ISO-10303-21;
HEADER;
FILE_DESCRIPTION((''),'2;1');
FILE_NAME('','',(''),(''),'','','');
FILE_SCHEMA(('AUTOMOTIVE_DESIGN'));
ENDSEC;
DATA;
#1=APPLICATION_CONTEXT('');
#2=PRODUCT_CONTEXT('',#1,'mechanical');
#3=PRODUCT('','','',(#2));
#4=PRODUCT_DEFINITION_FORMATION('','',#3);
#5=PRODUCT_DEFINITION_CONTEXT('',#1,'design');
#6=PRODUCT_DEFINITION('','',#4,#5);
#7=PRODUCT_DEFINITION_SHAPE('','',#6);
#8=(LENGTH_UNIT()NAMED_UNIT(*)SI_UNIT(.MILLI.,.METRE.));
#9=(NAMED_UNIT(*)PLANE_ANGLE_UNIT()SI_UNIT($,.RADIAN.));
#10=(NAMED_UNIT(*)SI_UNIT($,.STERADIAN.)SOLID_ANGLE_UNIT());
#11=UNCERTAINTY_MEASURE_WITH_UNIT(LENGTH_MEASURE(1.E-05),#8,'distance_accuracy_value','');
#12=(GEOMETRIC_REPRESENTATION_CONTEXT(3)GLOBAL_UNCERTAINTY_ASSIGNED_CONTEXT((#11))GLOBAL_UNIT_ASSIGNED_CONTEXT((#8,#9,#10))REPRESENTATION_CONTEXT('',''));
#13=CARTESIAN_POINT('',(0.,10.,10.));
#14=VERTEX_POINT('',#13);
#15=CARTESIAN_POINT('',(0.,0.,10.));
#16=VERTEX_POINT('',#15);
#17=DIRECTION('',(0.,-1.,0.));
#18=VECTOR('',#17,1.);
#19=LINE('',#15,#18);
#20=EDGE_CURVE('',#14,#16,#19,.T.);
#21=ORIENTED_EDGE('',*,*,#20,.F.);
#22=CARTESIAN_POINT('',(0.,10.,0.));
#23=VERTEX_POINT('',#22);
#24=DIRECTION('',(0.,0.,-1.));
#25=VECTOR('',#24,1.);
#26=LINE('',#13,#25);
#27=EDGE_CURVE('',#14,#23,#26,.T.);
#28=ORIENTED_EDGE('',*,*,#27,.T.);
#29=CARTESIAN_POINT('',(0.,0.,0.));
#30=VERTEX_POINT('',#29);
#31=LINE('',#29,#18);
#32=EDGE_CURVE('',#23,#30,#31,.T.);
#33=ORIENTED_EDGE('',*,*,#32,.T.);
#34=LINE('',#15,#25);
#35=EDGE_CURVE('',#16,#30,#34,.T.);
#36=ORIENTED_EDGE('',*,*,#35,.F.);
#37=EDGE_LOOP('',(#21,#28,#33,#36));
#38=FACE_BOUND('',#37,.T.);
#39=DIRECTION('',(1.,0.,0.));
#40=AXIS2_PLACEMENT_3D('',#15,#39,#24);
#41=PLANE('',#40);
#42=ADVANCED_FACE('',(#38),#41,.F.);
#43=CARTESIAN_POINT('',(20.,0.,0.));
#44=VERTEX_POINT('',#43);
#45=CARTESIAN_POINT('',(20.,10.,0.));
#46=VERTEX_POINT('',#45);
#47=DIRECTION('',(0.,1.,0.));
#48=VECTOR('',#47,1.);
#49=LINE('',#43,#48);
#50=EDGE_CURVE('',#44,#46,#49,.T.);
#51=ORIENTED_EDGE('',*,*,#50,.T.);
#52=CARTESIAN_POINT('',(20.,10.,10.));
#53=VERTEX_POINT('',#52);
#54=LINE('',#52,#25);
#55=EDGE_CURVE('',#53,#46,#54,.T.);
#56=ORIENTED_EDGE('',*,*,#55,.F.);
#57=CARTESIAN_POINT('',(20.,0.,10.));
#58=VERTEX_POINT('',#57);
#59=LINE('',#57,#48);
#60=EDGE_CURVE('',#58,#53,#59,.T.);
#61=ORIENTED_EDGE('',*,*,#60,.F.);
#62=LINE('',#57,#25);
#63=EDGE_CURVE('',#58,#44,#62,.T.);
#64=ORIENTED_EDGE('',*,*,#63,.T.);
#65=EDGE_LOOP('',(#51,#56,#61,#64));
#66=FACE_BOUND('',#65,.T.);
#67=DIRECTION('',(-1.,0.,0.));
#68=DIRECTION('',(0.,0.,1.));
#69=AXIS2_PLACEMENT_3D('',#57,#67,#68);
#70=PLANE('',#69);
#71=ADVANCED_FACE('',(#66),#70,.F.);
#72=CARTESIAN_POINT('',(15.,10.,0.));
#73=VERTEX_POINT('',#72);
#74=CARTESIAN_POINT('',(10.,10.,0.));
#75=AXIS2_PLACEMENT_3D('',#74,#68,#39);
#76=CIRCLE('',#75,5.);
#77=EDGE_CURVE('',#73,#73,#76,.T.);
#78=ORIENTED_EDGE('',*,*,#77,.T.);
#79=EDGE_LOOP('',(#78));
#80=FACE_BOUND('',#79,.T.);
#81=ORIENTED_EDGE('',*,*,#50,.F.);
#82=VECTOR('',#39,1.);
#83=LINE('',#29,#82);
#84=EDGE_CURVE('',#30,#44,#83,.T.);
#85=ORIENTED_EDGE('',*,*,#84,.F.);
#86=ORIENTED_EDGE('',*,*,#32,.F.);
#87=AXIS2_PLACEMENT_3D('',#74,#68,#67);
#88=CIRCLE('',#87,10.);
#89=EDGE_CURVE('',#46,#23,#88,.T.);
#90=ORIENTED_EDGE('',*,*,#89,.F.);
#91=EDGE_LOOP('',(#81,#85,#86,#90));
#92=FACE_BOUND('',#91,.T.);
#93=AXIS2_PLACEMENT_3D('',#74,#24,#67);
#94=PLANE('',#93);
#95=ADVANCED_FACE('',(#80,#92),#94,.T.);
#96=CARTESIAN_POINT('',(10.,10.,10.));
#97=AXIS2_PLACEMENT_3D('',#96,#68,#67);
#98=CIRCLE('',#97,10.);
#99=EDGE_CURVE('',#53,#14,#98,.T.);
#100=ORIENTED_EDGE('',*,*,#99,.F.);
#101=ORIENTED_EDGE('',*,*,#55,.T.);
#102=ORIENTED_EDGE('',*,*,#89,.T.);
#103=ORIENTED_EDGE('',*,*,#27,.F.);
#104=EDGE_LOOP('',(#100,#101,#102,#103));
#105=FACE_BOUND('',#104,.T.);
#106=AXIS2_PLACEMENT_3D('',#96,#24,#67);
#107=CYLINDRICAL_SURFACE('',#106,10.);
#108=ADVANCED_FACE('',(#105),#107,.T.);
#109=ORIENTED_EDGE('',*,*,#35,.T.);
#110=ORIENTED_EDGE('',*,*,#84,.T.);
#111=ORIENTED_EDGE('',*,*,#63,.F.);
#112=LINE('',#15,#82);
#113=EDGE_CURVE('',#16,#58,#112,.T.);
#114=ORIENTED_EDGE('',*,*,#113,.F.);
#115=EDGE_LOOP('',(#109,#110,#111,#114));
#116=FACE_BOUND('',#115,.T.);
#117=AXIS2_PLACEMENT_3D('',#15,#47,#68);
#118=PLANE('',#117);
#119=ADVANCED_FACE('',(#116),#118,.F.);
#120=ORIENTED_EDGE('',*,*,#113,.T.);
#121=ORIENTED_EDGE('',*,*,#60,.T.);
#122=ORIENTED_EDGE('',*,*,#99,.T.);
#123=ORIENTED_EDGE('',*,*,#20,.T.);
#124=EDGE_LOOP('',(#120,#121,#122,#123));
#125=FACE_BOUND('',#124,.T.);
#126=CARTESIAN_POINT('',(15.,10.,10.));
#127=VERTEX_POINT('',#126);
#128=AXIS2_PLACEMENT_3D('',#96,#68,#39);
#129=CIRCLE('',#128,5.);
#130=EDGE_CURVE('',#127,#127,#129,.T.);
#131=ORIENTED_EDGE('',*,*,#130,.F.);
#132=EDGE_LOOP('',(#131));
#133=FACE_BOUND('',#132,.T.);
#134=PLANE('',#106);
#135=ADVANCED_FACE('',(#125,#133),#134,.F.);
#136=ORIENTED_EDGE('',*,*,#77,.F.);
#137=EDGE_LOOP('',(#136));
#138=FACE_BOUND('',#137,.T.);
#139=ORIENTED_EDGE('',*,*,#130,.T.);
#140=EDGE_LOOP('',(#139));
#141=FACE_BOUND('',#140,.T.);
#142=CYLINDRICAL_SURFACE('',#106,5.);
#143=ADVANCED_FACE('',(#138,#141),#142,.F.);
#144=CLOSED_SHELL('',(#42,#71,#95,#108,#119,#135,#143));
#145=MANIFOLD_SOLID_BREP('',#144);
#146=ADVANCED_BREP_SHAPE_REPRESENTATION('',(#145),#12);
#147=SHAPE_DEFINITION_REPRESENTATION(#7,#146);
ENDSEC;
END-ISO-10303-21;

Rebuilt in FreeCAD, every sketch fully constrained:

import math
import FreeCAD as App
import Part
import Sketcher
from FreeCAD import Vector
Q = App.Units.Quantity

doc = App.newDocument("Part")
body = doc.addObject("PartDesign::Body", "Body")

sketch1 = body.newObject("Sketcher::SketchObject", "Sketch")
sketch1.AttachmentSupport = (doc.getObject("XY_Plane"), [""])
sketch1.MapMode = "FlatFace"
sketch1.addGeometry([
    Part.LineSegment(Vector(0, 0, 0), Vector(20, 0, 0)),
    Part.LineSegment(Vector(20, 0, 0), Vector(20, 10, 0)),
    Part.ArcOfCircle(Part.Circle(Vector(10, 10, 0), Vector(0, 0, 1), 10), math.radians(0), math.radians(180)),
    Part.LineSegment(Vector(0, 10, 0), Vector(0, 0, 0)),
    Part.Circle(Vector(10, 10, 0), Vector(0, 0, 1), 5),
], False)
sketch1.addConstraint([
    Sketcher.Constraint("Coincident", 0, 2, 1, 1),
    Sketcher.Constraint("Tangent", 1, 2, 2, 1),
    Sketcher.Constraint("Tangent", 2, 2, 3, 1),
    Sketcher.Constraint("Coincident", 3, 2, 0, 1),
    Sketcher.Constraint("Horizontal", 0),
    Sketcher.Constraint("Vertical", 1),
    Sketcher.Constraint("Vertical", 3),
    Sketcher.Constraint("Coincident", 3, 2, -1, 1),
    Sketcher.Constraint("Coincident", 4, 3, 2, 3),
    Sketcher.Constraint("Diameter", 4, Q("10 mm")),
    Sketcher.Constraint("Radius", 2, Q("10 mm")),
    Sketcher.Constraint("DistanceY", 1, 1, 1, 2, Q("10 mm")),
])
pad1 = body.newObject("PartDesign::Pad", "Pad")
pad1.Profile = sketch1
pad1.Length = 10

doc.recompute()
